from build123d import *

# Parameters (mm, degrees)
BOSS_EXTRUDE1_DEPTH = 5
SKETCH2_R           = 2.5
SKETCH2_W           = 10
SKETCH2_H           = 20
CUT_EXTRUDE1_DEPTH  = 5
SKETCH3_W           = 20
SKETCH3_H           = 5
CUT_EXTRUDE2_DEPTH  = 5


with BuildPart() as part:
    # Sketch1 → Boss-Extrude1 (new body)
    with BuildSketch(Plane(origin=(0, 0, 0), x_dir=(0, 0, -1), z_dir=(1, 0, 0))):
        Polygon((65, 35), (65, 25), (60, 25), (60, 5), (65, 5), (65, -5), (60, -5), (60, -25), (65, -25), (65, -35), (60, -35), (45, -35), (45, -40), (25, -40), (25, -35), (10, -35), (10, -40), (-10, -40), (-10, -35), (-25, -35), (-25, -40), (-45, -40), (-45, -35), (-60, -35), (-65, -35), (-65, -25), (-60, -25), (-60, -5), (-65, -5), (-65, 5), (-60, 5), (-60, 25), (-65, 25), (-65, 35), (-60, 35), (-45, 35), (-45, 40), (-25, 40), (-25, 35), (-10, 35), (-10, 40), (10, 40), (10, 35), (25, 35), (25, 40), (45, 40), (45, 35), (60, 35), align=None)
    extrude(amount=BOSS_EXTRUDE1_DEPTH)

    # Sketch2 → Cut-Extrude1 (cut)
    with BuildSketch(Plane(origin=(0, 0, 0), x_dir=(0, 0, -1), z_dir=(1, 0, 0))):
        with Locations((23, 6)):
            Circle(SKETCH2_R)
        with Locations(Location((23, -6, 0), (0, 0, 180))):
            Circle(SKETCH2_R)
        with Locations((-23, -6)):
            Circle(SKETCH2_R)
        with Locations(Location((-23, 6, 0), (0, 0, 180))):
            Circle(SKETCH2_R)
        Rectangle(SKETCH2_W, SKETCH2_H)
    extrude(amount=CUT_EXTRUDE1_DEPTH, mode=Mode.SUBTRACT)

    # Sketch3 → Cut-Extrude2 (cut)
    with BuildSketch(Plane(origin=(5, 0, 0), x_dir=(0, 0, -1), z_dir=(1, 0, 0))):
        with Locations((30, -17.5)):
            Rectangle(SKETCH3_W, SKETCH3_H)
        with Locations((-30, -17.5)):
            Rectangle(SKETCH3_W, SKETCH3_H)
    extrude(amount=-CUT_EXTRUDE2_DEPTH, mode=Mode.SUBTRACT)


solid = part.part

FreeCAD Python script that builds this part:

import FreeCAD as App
import Part
import Sketcher

V = App.Vector

doc = App.newDocument("Part")
params = doc.addObject("Spreadsheet::Sheet", "Params")
for row, (alias, value) in enumerate([
    ("sketch1_width", "10 mm"),
    ("sketch1_width2", "5 mm"),
    ("sketch1_width3", "20 mm"),
    ("sketch1_height", "15 mm"),
    ("pad1_length", "5 mm"),
    ("sketch2_diameter", "5 mm"),
    ("sketch2_width", "20 mm"),
    ("sketch2_height", "10 mm"),
    ("pocket1_length", "5 mm"),
    ("sketch3_width", "5 mm"),
    ("sketch3_height", "20 mm"),
    ("pocket2_length", "5 mm"),
], start=1):
    params.set(f"A{row}", alias)
    params.set(f"B{row}", "=" + value)
    params.setAlias(f"B{row}", alias)

body = doc.addObject("PartDesign::Body", "Body")

sketch1 = body.newObject("Sketcher::SketchObject", "Sketch")
sketch1.AttachmentSupport = (doc.getObject("YZ_Plane"), [""])
sketch1.MapMode = "FlatFace"
sketch1.addGeometry(Part.LineSegment(V(25, -65, 0), V(35, -65, 0)), False)
sketch1.addGeometry(Part.LineSegment(V(35, -65, 0), V(35, -45, 0)), False)
sketch1.addGeometry(Part.LineSegment(V(35, -45, 0), V(40, -45, 0)), False)
sketch1.addGeometry(Part.LineSegment(V(40, -45, 0), V(40, -25, 0)), False)
sketch1.addGeometry(Part.LineSegment(V(40, -25, 0), V(35, -25, 0)), False)
sketch1.addGeometry(Part.LineSegment(V(35, -25, 0), V(35, -10, 0)), False)
sketch1.addGeometry(Part.LineSegment(V(35, -10, 0), V(40, -10, 0)), False)
sketch1.addGeometry(Part.LineSegment(V(40, -10, 0), V(40, 10, 0)), False)
sketch1.addGeometry(Part.LineSegment(V(40, 10, 0), V(35, 10, 0)), False)
sketch1.addGeometry(Part.LineSegment(V(35, 10, 0), V(35, 25, 0)), False)
sketch1.addGeometry(Part.LineSegment(V(35, 25, 0), V(40, 25, 0)), False)
sketch1.addGeometry(Part.LineSegment(V(40, 25, 0), V(40, 45, 0)), False)
sketch1.addGeometry(Part.LineSegment(V(40, 45, 0), V(35, 45, 0)), False)
sketch1.addGeometry(Part.LineSegment(V(35, 45, 0), V(35, 65, 0)), False)
sketch1.addGeometry(Part.LineSegment(V(35, 65, 0), V(25, 65, 0)), False)
sketch1.addGeometry(Part.LineSegment(V(25, 65, 0), V(25, 60, 0)), False)
sketch1.addGeometry(Part.LineSegment(V(25, 60, 0), V(5, 60, 0)), False)
sketch1.addGeometry(Part.LineSegment(V(5, 60, 0), V(5, 65, 0)), False)
sketch1.addGeometry(Part.LineSegment(V(5, 65, 0), V(-5, 65, 0)), False)
sketch1.addGeometry(Part.LineSegment(V(-5, 65, 0), V(-5, 60, 0)), False)
sketch1.addGeometry(Part.LineSegment(V(-5, 60, 0), V(-25, 60, 0)), False)
sketch1.addGeometry(Part.LineSegment(V(-25, 60, 0), V(-25, 65, 0)), False)
sketch1.addGeometry(Part.LineSegment(V(-25, 65, 0), V(-35, 65, 0)), False)
sketch1.addGeometry(Part.LineSegment(V(-35, 65, 0), V(-35, 45, 0)), False)
sketch1.addGeometry(Part.LineSegment(V(-35, 45, 0), V(-40, 45, 0)), False)
sketch1.addGeometry(Part.LineSegment(V(-40, 45, 0), V(-40, 25, 0)), False)
sketch1.addGeometry(Part.LineSegment(V(-40, 25, 0), V(-35, 25, 0)), False)
sketch1.addGeometry(Part.LineSegment(V(-35, 25, 0), V(-35, 10, 0)), False)
sketch1.addGeometry(Part.LineSegment(V(-35, 10, 0), V(-40, 10, 0)), False)
sketch1.addGeometry(Part.LineSegment(V(-40, 10, 0), V(-40, -10, 0)), False)
sketch1.addGeometry(Part.LineSegment(V(-40, -10, 0), V(-35, -10, 0)), False)
sketch1.addGeometry(Part.LineSegment(V(-35, -10, 0), V(-35, -25, 0)), False)
sketch1.addGeometry(Part.LineSegment(V(-35, -25, 0), V(-40, -25, 0)), False)
sketch1.addGeometry(Part.LineSegment(V(-40, -25, 0), V(-40, -45, 0)), False)
sketch1.addGeometry(Part.LineSegment(V(-40, -45, 0), V(-35, -45, 0)), False)
sketch1.addGeometry(Part.LineSegment(V(-35, -45, 0), V(-35, -65, 0)), False)
sketch1.addGeometry(Part.LineSegment(V(-35, -65, 0), V(-25, -65, 0)), False)
sketch1.addGeometry(Part.LineSegment(V(-25, -65, 0), V(-25, -60, 0)), False)
sketch1.addGeometry(Part.LineSegment(V(-25, -60, 0), V(-5, -60, 0)), False)
sketch1.addGeometry(Part.LineSegment(V(-5, -60, 0), V(-5, -65, 0)), False)
sketch1.addGeometry(Part.LineSegment(V(-5, -65, 0), V(5, -65, 0)), False)
sketch1.addGeometry(Part.LineSegment(V(5, -65, 0), V(5, -60, 0)), False)
sketch1.addGeometry(Part.LineSegment(V(5, -60, 0), V(25, -60, 0)), False)
sketch1.addGeometry(Part.LineSegment(V(25, -60, 0), V(25, -65, 0)), False)
sketch1.addConstraint(Sketcher.Constraint("Coincident", 0, 2, 1, 1))
sketch1.addConstraint(Sketcher.Constraint("Coincident", 1, 2, 2, 1))
sketch1.addConstraint(Sketcher.Constraint("Coincident", 2, 2, 3, 1))
sketch1.addConstraint(Sketcher.Constraint("Coincident", 3, 2, 4, 1))
sketch1.addConstraint(Sketcher.Constraint("Coincident", 4, 2, 5, 1))
sketch1.addConstraint(Sketcher.Constraint("Coincident", 5, 2, 6, 1))
sketch1.addConstraint(Sketcher.Constraint("Coincident", 6, 2, 7, 1))
sketch1.addConstraint(Sketcher.Constraint("Coincident", 7, 2, 8, 1))
sketch1.addConstraint(Sketcher.Constraint("Coincident", 8, 2, 9, 1))
sketch1.addConstraint(Sketcher.Constraint("Coincident", 9, 2, 10, 1))
sketch1.addConstraint(Sketcher.Constraint("Coincident", 10, 2, 11, 1))
sketch1.addConstraint(Sketcher.Constraint("Coincident", 11, 2, 12, 1))
sketch1.addConstraint(Sketcher.Constraint("Coincident", 12, 2, 13, 1))
sketch1.addConstraint(Sketcher.Constraint("Coincident", 13, 2, 14, 1))
sketch1.addConstraint(Sketcher.Constraint("Coincident", 14, 2, 15, 1))
sketch1.addConstraint(Sketcher.Constraint("Coincident", 15, 2, 16, 1))
sketch1.addConstraint(Sketcher.Constraint("Coincident", 16, 2, 17, 1))
sketch1.addConstraint(Sketcher.Constraint("Coincident", 17, 2, 18, 1))
sketch1.addConstraint(Sketcher.Constraint("Coincident", 18, 2, 19, 1))
sketch1.addConstraint(Sketcher.Constraint("Coincident", 19, 2, 20, 1))
sketch1.addConstraint(Sketcher.Constraint("Coincident", 20, 2, 21, 1))
sketch1.addConstraint(Sketcher.Constraint("Coincident", 21, 2, 22, 1))
sketch1.addConstraint(Sketcher.Constraint("Coincident", 22, 2, 23, 1))
sketch1.addConstraint(Sketcher.Constraint("Coincident", 23, 2, 24, 1))
sketch1.addConstraint(Sketcher.Constraint("Coincident", 24, 2, 25, 1))
sketch1.addConstraint(Sketcher.Constraint("Coincident", 25, 2, 26, 1))
sketch1.addConstraint(Sketcher.Constraint("Coincident", 26, 2, 27, 1))
sketch1.addConstraint(Sketcher.Constraint("Coincident", 27, 2, 28, 1))
sketch1.addConstraint(Sketcher.Constraint("Coincident", 28, 2, 29, 1))
sketch1.addConstraint(Sketcher.Constraint("Coincident", 29, 2, 30, 1))
sketch1.addConstraint(Sketcher.Constraint("Coincident", 30, 2, 31, 1))
sketch1.addConstraint(Sketcher.Constraint("Coincident", 31, 2, 32, 1))
sketch1.addConstraint(Sketcher.Constraint("Coincident", 32, 2, 33, 1))
sketch1.addConstraint(Sketcher.Constraint("Coincident", 33, 2, 34, 1))
sketch1.addConstraint(Sketcher.Constraint("Coincident", 34, 2, 35, 1))
sketch1.addConstraint(Sketcher.Constraint("Coincident", 35, 2, 36, 1))
sketch1.addConstraint(Sketcher.Constraint("Coincident", 36, 2, 37, 1))
sketch1.addConstraint(Sketcher.Constraint("Coincident", 37, 2, 38, 1))
sketch1.addConstraint(Sketcher.Constraint("Coincident", 38, 2, 39, 1))
sketch1.addConstraint(Sketcher.Constraint("Coincident", 39, 2, 40, 1))
sketch1.addConstraint(Sketcher.Constraint("Coincident", 40, 2, 41, 1))
sketch1.addConstraint(Sketcher.Constraint("Coincident", 41, 2, 42, 1))
sketch1.addConstraint(Sketcher.Constraint("Coincident", 42, 2, 43, 1))
sketch1.addConstraint(Sketcher.Constraint("Coincident", 43, 2, 0, 1))
sketch1.addConstraint(Sketcher.Constraint("Horizontal", 0))
sketch1.addConstraint(Sketcher.Constraint("Vertical", 1))
sketch1.addConstraint(Sketcher.Constraint("Horizontal", 2))
sketch1.addConstraint(Sketcher.Constraint("Vertical", 3))
sketch1.addConstraint(Sketcher.Constraint("Horizontal", 4))
sketch1.addConstraint(Sketcher.Constraint("Vertical", 5))
sketch1.addConstraint(Sketcher.Constraint("Horizontal", 6))
sketch1.addConstraint(Sketcher.Constraint("Vertical", 7))
sketch1.addConstraint(Sketcher.Constraint("Horizontal", 8))
sketch1.addConstraint(Sketcher.Constraint("Vertical", 9))
sketch1.addConstraint(Sketcher.Constraint("Horizontal", 10))
sketch1.addConstraint(Sketcher.Constraint("Vertical", 11))
sketch1.addConstraint(Sketcher.Constraint("Horizontal", 12))
sketch1.addConstraint(Sketcher.Constraint("Vertical", 13))
sketch1.addConstraint(Sketcher.Constraint("Horizontal", 14))
sketch1.addConstraint(Sketcher.Constraint("Vertical", 15))
sketch1.addConstraint(Sketcher.Constraint("Horizontal", 16))
sketch1.addConstraint(Sketcher.Constraint("Vertical", 17))
sketch1.addConstraint(Sketcher.Constraint("Horizontal", 18))
sketch1.addConstraint(Sketcher.Constraint("Vertical", 19))
sketch1.addConstraint(Sketcher.Constraint("Horizontal", 20))
sketch1.addConstraint(Sketcher.Constraint("Vertical", 21))
sketch1.addConstraint(Sketcher.Constraint("Horizontal", 22))
sketch1.addConstraint(Sketcher.Constraint("Vertical", 23))
sketch1.addConstraint(Sketcher.Constraint("Horizontal", 24))
sketch1.addConstraint(Sketcher.Constraint("Vertical", 25))
sketch1.addConstraint(Sketcher.Constraint("Horizontal", 26))
sketch1.addConstraint(Sketcher.Constraint("Vertical", 27))
sketch1.addConstraint(Sketcher.Constraint("Horizontal", 28))
sketch1.addConstraint(Sketcher.Constraint("Vertical", 29))
sketch1.addConstraint(Sketcher.Constraint("Horizontal", 30))
sketch1.addConstraint(Sketcher.Constraint("Vertical", 31))
sketch1.addConstraint(Sketcher.Constraint("Horizontal", 32))
sketch1.addConstraint(Sketcher.Constraint("Vertical", 33))
sketch1.addConstraint(Sketcher.Constraint("Horizontal", 34))
sketch1.addConstraint(Sketcher.Constraint("Vertical", 35))
sketch1.addConstraint(Sketcher.Constraint("Horizontal", 36))
sketch1.addConstraint(Sketcher.Constraint("Vertical", 37))
sketch1.addConstraint(Sketcher.Constraint("Horizontal", 38))
sketch1.addConstraint(Sketcher.Constraint("Vertical", 39))
sketch1.addConstraint(Sketcher.Constraint("Horizontal", 40))
sketch1.addConstraint(Sketcher.Constraint("Vertical", 41))
sketch1.addConstraint(Sketcher.Constraint("Horizontal", 42))
sketch1.addConstraint(Sketcher.Constraint("Vertical", 43))
sketch1.addConstraint(Sketcher.Constraint("Symmetric", 0, 2, 22, 2, -1, 1))
sketch1.addConstraint(Sketcher.Constraint("Symmetric", 2, 2, 24, 2, -1, 1))
sketch1.addConstraint(Sketcher.Constraint("Symmetric", 4, 2, 26, 2, -1, 1))
sketch1.addConstraint(Sketcher.Constraint("Symmetric", 6, 2, 28, 2, -1, 1))
sketch1.addConstraint(Sketcher.Constraint("Symmetric", 8, 2, 30, 2, -1, 1))
sketch1.addConstraint(Sketcher.Constraint("Symmetric", 10, 2, 32, 2, -1, 1))
sketch1.addConstraint(Sketcher.Constraint("Symmetric", 12, 2, 34, 2, -1, 1))
sketch1.addConstraint(Sketcher.Constraint("Symmetric", 14, 2, 36, 2, -1, 1))
sketch1.addConstraint(Sketcher.Constraint("Symmetric", 16, 2, 38, 2, -1, 1))
sketch1.addConstraint(Sketcher.Constraint("Symmetric", 18, 2, 40, 2, -1, 1))
sketch1.addConstraint(Sketcher.Constraint("Symmetric", 20, 2, 42, 2, -1, 1))
sketch1.addConstraint(Sketcher.Constraint("Symmetric", 16, 2, 19, 2, -2))
sketch1.addConstraint(Sketcher.Constraint("Symmetric", 14, 2, 21, 2, -2))
sketch1.addConstraint(Sketcher.Constraint("Symmetric", 12, 2, 23, 2, -2))
sketch1.addConstraint(Sketcher.Constraint("Symmetric", 10, 2, 25, 2, -2))
sketch1.addConstraint(Sketcher.Constraint("Symmetric", 8, 2, 27, 2, -2))
sketch1.addConstraint(Sketcher.Constraint("Horizontal", 14, 2, 17, 2))
sketch1.addConstraint(Sketcher.Constraint("Vertical", 1, 2, 4, 2))
sketch1.addConstraint(Sketcher.Constraint("Vertical", 3, 2, 6, 2))
sketch1.addConstraint(Sketcher.Constraint("Equal", 14, 18))
sketch1.addConstraint(Sketcher.Constraint("Equal", 42, 1))
sketch1.addConstraint(Sketcher.Constraint("Equal", 1, 3))
sketch1.addConstraint(Sketcher.Constraint("Equal", 3, 7))
sketch1.addConstraint(Sketcher.Constraint("Equal", 34, 15))
sketch1.addConstraint(Sketcher.Constraint("DistanceX", 0, 1, 0, 2, 10.0))
sketch1.addConstraint(Sketcher.Constraint("DistanceX", 2, 1, 2, 2, 5.0))
sketch1.addConstraint(Sketcher.Constraint("DistanceX", 16, 2, 16, 1, 20.0))
sketch1.addConstraint(Sketcher.Constraint("DistanceY", 5, 1, 5, 2, 15.0))
sketch1.setExpression("Constraints[112]", "Params.sketch1_width")
sketch1.setExpression("Constraints[113]", "Params.sketch1_width2")
sketch1.setExpression("Constraints[114]", "Params.sketch1_width3")
sketch1.setExpression("Constraints[115]", "Params.sketch1_height")
pad1 = body.newObject("PartDesign::Pad", "Pad")
pad1.Profile = sketch1
pad1.setExpression("Length", "Params.pad1_length")

sketch2 = body.newObject("Sketcher::SketchObject", "Sketch001")
sketch2.AttachmentSupport = (doc.getObject("YZ_Plane"), [""])
sketch2.MapMode = "FlatFace"
sketch2.addGeometry(Part.Circle(V(6, -23, 0), V(0, 0, 1), 2.5), False)
sketch2.addGeometry(Part.Circle(V(-6, -23, 0), V(0, 0, 1), 2.5), False)
sketch2.addGeometry(Part.Circle(V(-6, 23, 0), V(0, 0, 1), 2.5), False)
sketch2.addGeometry(Part.Circle(V(6, 23, 0), V(0, 0, 1), 2.5), False)
sketch2.addGeometry(Part.LineSegment(V(10, 5, 0), V(-10, 5, 0)), False)
sketch2.addGeometry(Part.LineSegment(V(-10, 5, 0), V(-10, -5, 0)), False)
sketch2.addGeometry(Part.LineSegment(V(-10, -5, 0), V(10, -5, 0)), False)
sketch2.addGeometry(Part.LineSegment(V(10, -5, 0), V(10, 5, 0)), False)
sketch2.addConstraint(Sketcher.Constraint("Coincident", 4, 2, 5, 1))
sketch2.addConstraint(Sketcher.Constraint("Coincident", 5, 2, 6, 1))
sketch2.addConstraint(Sketcher.Constraint("Coincident", 6, 2, 7, 1))
sketch2.addConstraint(Sketcher.Constraint("Coincident", 7, 2, 4, 1))
sketch2.addConstraint(Sketcher.Constraint("Horizontal", 4))
sketch2.addConstraint(Sketcher.Constraint("Vertical", 5))
sketch2.addConstraint(Sketcher.Constraint("Horizontal", 6))
sketch2.addConstraint(Sketcher.Constraint("Vertical", 7))
sketch2.addConstraint(Sketcher.Constraint("Equal", 0, 1))
sketch2.addConstraint(Sketcher.Constraint("Equal", 1, 2))
sketch2.addConstraint(Sketcher.Constraint("Equal", 2, 3))
sketch2.addConstraint(Sketcher.Constraint("Symmetric", 0, 3, 2, 3, -1, 1))
sketch2.addConstraint(Sketcher.Constraint("Symmetric", 1, 3, 3, 3, -1, 1))
sketch2.addConstraint(Sketcher.Constraint("Symmetric", 4, 2, 6, 2, -1, 1))
sketch2.addConstraint(Sketcher.Constraint("Symmetric", 0, 3, 1, 3, -2))
sketch2.addConstraint(Sketcher.Constraint("Diameter", 0, 5.0))
sketch2.addConstraint(Sketcher.Constraint("DistanceX", 4, 2, 4, 1, 20.0))
sketch2.addConstraint(Sketcher.Constraint("DistanceY", 5, 2, 5, 1, 10.0))
sketch2.addConstraint(Sketcher.Constraint("DistanceX", -1, 1, 0, 3, 6.0))
sketch2.addConstraint(Sketcher.Constraint("DistanceY", 0, 3, -1, 1, 23.0))
sketch2.setExpression("Constraints[15]", "Params.sketch2_diameter")
sketch2.setExpression("Constraints[16]", "Params.sketch2_width")
sketch2.setExpression("Constraints[17]", "Params.sketch2_height")
pocket1 = body.newObject("PartDesign::Pocket", "Pocket")
pocket1.Profile = sketch2
pocket1.setExpression("Length", "Params.pocket1_length")
pocket1.Reversed = True

sketch3 = body.newObject("Sketcher::SketchObject", "Sketch002")
sketch3.AttachmentSupport = (doc.getObject("YZ_Plane"), [""])
sketch3.MapMode = "FlatFace"
sketch3.AttachmentOffset = App.Placement(V(0, 0, 5), App.Rotation())
sketch3.addGeometry(Part.LineSegment(V(-15, -20, 0), V(-20, -20, 0)), False)
sketch3.addGeometry(Part.LineSegment(V(-20, -20, 0), V(-20, -40, 0)), False)
sketch3.addGeometry(Part.LineSegment(V(-20, -40, 0), V(-15, -40, 0)), False)
sketch3.addGeometry(Part.LineSegment(V(-15, -40, 0), V(-15, -20, 0)), False)
sketch3.addGeometry(Part.LineSegment(V(-15, 40, 0), V(-20, 40, 0)), False)
sketch3.addGeometry(Part.LineSegment(V(-20, 40, 0), V(-20, 20, 0)), False)
sketch3.addGeometry(Part.LineSegment(V(-20, 20, 0), V(-15, 20, 0)), False)
sketch3.addGeometry(Part.LineSegment(V(-15, 20, 0), V(-15, 40, 0)), False)
sketch3.addConstraint(Sketcher.Constraint("Coincident", 0, 2, 1, 1))
sketch3.addConstraint(Sketcher.Constraint("Coincident", 1, 2, 2, 1))
sketch3.addConstraint(Sketcher.Constraint("Coincident", 2, 2, 3, 1))
sketch3.addConstraint(Sketcher.Constraint("Coincident", 3, 2, 0, 1))
sketch3.addConstraint(Sketcher.Constraint("Coincident", 4, 2, 5, 1))
sketch3.addConstraint(Sketcher.Constraint("Coincident", 5, 2, 6, 1))
sketch3.addConstraint(Sketcher.Constraint("Coincident", 6, 2, 7, 1))
sketch3.addConstraint(Sketcher.Constraint("Coincident", 7, 2, 4, 1))
sketch3.addConstraint(Sketcher.Constraint("Horizontal", 0))
sketch3.addConstraint(Sketcher.Constraint("Vertical", 1))
sketch3.addConstraint(Sketcher.Constraint("Horizontal", 2))
sketch3.addConstraint(Sketcher.Constraint("Vertical", 3))
sketch3.addConstraint(Sketcher.Constraint("Horizontal", 4))
sketch3.addConstraint(Sketcher.Constraint("Vertical", 5))
sketch3.addConstraint(Sketcher.Constraint("Horizontal", 6))
sketch3.addConstraint(Sketcher.Constraint("Vertical", 7))
sketch3.addConstraint(Sketcher.Constraint("Symmetric", 1, 2, 4, 2, -1))
sketch3.addConstraint(Sketcher.Constraint("Symmetric", 3, 2, 6, 2, -1))
sketch3.addConstraint(Sketcher.Constraint("DistanceX", 0, 2, 0, 1, 5.0))
sketch3.addConstraint(Sketcher.Constraint("DistanceY", 1, 2, 1, 1, 20.0))
sketch3.addConstraint(Sketcher.Constraint("DistanceX", 0, 2, -1, 1, 20.0))
sketch3.addConstraint(Sketcher.Constraint("DistanceY", 0, 2, -1, 1, 20.0))
sketch3.setExpression("Constraints[18]", "Params.sketch3_width")
sketch3.setExpression("Constraints[19]", "Params.sketch3_height")
pocket2 = body.newObject("PartDesign::Pocket", "Pocket001")
pocket2.Profile = sketch3
pocket2.setExpression("Length", "Params.pocket2_length")

doc.recompute()
